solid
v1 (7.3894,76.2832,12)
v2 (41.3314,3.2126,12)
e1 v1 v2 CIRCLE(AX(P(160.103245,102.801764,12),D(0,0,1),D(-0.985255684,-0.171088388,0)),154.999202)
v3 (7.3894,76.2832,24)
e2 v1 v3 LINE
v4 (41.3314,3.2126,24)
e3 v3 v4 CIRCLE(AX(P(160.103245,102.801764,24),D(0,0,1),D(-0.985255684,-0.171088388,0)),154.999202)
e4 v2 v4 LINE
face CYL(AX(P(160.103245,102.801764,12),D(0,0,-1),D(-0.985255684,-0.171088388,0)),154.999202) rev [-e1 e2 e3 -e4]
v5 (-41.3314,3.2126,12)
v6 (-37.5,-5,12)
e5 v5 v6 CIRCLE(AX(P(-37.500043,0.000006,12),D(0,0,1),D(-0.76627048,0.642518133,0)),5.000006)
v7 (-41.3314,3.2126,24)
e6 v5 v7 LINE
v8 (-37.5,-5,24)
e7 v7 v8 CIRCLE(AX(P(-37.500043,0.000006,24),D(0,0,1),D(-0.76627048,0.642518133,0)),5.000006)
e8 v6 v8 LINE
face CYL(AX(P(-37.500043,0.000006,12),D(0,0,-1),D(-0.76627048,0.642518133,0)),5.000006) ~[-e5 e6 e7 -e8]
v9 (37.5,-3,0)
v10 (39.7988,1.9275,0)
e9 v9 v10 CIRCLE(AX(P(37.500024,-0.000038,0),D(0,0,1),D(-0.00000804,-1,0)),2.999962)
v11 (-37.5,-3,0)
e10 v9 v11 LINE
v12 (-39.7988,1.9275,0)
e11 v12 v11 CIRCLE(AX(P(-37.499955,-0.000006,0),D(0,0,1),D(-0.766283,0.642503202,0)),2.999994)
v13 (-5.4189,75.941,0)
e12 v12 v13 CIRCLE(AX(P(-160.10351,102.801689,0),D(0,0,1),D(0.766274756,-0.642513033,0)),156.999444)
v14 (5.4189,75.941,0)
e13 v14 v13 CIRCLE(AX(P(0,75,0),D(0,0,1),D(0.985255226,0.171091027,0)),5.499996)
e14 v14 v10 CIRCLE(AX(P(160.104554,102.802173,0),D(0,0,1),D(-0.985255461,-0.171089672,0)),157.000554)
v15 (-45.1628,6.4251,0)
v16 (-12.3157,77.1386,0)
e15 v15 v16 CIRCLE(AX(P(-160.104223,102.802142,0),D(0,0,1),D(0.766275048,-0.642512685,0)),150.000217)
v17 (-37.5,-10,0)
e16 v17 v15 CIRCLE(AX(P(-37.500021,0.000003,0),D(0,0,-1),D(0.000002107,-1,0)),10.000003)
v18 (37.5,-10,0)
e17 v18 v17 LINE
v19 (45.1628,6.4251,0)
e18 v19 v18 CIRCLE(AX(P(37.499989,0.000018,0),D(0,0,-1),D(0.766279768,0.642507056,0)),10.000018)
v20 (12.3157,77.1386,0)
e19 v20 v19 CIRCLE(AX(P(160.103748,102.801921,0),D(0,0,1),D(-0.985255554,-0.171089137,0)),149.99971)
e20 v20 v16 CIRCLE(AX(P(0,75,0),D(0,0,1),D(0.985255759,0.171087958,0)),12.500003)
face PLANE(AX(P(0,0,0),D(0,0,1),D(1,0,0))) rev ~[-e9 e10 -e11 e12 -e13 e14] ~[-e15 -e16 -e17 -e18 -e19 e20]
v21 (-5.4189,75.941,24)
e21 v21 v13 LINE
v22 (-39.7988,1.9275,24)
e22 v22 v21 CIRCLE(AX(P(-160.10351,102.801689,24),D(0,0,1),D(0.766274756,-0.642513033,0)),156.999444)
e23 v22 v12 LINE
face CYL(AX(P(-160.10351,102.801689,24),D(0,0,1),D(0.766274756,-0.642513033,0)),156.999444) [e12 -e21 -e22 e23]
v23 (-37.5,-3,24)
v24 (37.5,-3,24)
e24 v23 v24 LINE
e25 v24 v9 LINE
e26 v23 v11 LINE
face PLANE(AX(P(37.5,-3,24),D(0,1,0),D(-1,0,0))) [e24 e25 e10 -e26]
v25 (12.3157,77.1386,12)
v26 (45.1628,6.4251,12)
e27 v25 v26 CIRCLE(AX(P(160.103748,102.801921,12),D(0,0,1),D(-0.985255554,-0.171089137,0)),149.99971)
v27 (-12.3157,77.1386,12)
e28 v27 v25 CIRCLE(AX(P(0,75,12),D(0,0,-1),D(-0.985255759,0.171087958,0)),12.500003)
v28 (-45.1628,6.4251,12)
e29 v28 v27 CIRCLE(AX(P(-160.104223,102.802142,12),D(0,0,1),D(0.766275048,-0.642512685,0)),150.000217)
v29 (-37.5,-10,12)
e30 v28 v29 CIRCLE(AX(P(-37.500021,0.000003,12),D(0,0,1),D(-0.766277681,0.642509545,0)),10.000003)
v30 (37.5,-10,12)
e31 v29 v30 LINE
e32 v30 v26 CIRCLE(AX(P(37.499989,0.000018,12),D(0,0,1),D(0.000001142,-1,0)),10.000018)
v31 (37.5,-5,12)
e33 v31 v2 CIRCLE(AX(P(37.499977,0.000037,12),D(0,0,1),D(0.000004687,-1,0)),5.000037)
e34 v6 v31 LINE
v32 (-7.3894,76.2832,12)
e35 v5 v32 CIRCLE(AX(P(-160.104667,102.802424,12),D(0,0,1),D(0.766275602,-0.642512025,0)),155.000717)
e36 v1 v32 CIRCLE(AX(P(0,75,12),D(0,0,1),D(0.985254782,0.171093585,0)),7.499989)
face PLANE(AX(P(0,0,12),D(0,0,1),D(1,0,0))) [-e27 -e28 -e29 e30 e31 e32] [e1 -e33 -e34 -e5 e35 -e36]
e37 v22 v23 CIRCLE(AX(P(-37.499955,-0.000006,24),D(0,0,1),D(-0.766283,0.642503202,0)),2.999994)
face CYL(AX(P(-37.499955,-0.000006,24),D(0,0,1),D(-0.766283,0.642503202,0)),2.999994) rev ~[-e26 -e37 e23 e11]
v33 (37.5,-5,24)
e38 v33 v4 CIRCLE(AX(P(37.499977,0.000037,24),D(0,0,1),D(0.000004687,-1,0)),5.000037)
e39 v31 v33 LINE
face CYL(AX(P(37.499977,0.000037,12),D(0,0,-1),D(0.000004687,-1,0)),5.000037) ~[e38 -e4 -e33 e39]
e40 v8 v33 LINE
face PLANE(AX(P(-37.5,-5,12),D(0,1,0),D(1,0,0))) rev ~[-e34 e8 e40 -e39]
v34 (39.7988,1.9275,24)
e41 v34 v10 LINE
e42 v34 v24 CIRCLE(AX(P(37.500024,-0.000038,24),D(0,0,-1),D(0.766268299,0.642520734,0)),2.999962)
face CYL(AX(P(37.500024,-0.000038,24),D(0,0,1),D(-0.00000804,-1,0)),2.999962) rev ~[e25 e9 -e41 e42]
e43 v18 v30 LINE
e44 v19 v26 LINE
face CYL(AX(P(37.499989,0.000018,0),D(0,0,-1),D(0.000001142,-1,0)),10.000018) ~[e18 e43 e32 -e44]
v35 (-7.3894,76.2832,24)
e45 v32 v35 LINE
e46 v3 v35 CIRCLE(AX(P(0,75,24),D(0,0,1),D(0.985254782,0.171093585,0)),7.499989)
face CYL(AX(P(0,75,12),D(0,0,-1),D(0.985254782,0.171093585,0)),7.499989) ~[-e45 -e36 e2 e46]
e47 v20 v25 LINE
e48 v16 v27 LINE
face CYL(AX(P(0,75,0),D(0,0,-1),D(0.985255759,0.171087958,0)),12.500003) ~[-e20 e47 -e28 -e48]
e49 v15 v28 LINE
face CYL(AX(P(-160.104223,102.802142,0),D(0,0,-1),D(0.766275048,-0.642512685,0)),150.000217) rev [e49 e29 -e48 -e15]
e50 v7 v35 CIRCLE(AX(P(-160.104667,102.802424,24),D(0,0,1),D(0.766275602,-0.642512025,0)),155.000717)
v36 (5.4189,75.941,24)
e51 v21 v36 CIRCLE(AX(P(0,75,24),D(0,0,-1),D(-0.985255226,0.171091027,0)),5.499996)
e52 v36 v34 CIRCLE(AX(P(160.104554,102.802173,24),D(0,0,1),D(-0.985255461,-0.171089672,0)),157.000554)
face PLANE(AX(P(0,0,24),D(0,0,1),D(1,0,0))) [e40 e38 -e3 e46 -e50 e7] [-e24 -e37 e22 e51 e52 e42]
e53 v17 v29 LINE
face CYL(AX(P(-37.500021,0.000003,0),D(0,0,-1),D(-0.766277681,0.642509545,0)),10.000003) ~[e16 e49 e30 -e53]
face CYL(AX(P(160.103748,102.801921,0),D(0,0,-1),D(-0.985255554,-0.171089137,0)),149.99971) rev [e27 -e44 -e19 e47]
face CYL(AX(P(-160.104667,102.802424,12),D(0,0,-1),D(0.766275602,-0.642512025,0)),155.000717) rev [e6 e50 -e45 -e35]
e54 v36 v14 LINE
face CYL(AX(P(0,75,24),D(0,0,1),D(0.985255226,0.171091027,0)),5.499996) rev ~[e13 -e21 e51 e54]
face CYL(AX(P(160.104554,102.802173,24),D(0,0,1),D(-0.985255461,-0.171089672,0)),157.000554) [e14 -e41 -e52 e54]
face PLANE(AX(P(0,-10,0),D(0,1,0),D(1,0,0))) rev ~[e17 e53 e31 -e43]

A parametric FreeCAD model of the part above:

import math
import FreeCAD as App
import Part
import Sketcher

V = App.Vector
Q = App.Units.Quantity

doc = App.newDocument("Part")
params = doc.addObject("Spreadsheet::Sheet", "Params")
for row, (alias, value) in enumerate([
    ("sketch1_radius", "150 mm"),
    ("sketch1_radius2", "10 mm"),
    ("sketch1_radius3", "12.5 mm"),
    ("sketch1_width", "75 mm"),
    ("pad1_length", "12 mm"),
    ("sketch2_radius", "5 mm"),
    ("sketch2_radius2", "155 mm"),
    ("sketch2_radius3", "7.5 mm"),
    ("sketch2_width", "75 mm"),
    ("pad2_length", "12 mm"),
    ("sketch3_radius", "3 mm"),
    ("sketch3_radius2", "157 mm"),
    ("sketch3_radius3", "5.5 mm"),
    ("sketch3_width", "75 mm"),
], start=1):
    params.set(f"A{row}", alias)
    params.set(f"B{row}", "=" + value)
    params.setAlias(f"B{row}", alias)

body = doc.addObject("PartDesign::Body", "Body")

sketch1 = doc.addObject("Sketcher::SketchObject", "Sketch")
body.addObject(sketch1)
sketch1.AttachmentSupport = (doc.XY_Plane, [""])
sketch1.MapMode = "FlatFace"
sketch1.addGeometry([
    Part.ArcOfCircle(Part.Circle(V(0, 75, 0), V(0, 0, 1), 12.500003), math.radians(9.851081), math.radians(170.148919)),
    Part.ArcOfCircle(Part.Circle(V(-160.104, 102.802, 0), V(0, 0, 1), 149.999954), math.radians(-39.979454), math.radians(-9.851163)),
    Part.ArcOfCircle(Part.Circle(V(-37.5, 0, 0), V(0, 0, 1), 10.000021), math.radians(140.02086), math.radians(270)),
    Part.LineSegment(V(-37.5, -10, 0), V(37.5, -10, 0)),
    Part.ArcOfCircle(Part.Circle(V(37.5, 0, 0), V(0, 0, 1), 10), math.radians(-90), math.radians(39.97914)),
    Part.ArcOfCircle(Part.Circle(V(160.104, 102.802, 0), V(0, 0, 1), 149.999972), math.radians(-170.148837), math.radians(-140.020546)),
], False)
sketch1.addConstraint([
    Sketcher.Constraint("Tangent", 0, 2, 1, 2),
    Sketcher.Constraint("Tangent", 1, 1, 2, 1),
    Sketcher.Constraint("Tangent", 2, 2, 3, 1),
    Sketcher.Constraint("Tangent", 3, 2, 4, 1),
    Sketcher.Constraint("Tangent", 4, 2, 5, 2),
    Sketcher.Constraint("Tangent", 5, 1, 0, 1),
    Sketcher.Constraint("Horizontal", 3),
    Sketcher.Constraint("Equal", 2, 4),
    Sketcher.Constraint("Equal", 1, 5),
    Sketcher.Constraint("Symmetric", 2, 3, 4, 3, -1, 1),
    Sketcher.Constraint("PointOnObject", 0, 3, -2),
    Sketcher.Constraint("Radius", 1, Q("150 mm")),
    Sketcher.Constraint("Radius", 2, Q("10 mm")),
    Sketcher.Constraint("Radius", 0, Q("12.5 mm")),
    Sketcher.Constraint("DistanceX", 3, 1, 3, 2, Q("75 mm")),
    Sketcher.Constraint("DistanceY", -1, 1, 0, 3, Q("75 mm")),
])
sketch1.setExpression("Constraints[11]", "Params.sketch1_radius")
sketch1.setExpression("Constraints[12]", "Params.sketch1_radius2")
sketch1.setExpression("Constraints[13]", "Params.sketch1_radius3")
sketch1.setExpression("Constraints[14]", "Params.sketch1_width")
pad1 = doc.addObject("PartDesign::Pad", "Pad")
body.addObject(pad1)
pad1.Profile = sketch1
pad1.setExpression("Length", "Params.pad1_length")

sketch2 = doc.addObject("Sketcher::SketchObject", "Sketch001")
body.addObject(sketch2)
sketch2.AttachmentSupport = (doc.XY_Plane, [""])
sketch2.MapMode = "FlatFace"
sketch2.AttachmentOffset = App.Placement(V(0, 0, 12), App.Rotation())
sketch2.addGeometry([
    Part.ArcOfCircle(Part.Circle(V(-160.104, 102.802, 0), V(0, 0, 1), 154.999933), math.radians(-39.979429), math.radians(-9.851145)),
    Part.ArcOfCircle(Part.Circle(V(-37.5, 0, 0), V(0, 0, 1), 5.000042), math.radians(140.020421), math.radians(270)),
    Part.LineSegment(V(-37.5, -5, 0), V(37.5, -5, 0)),
    Part.ArcOfCircle(Part.Circle(V(37.5, 0, 0), V(0, 0, 1), 5), math.radians(-90), math.radians(39.979579)),
    Part.ArcOfCircle(Part.Circle(V(160.104, 102.802, 0), V(0, 0, 1), 154.999986), math.radians(-170.148855), math.radians(-140.020571)),
    Part.ArcOfCircle(Part.Circle(V(0, 75, 0), V(0, 0, 1), 7.499989), math.radians(9.851408), math.radians(170.148592)),
], False)
sketch2.addConstraint([
    Sketcher.Constraint("Tangent", 0, 1, 1, 1),
    Sketcher.Constraint("Tangent", 1, 2, 2, 1),
    Sketcher.Constraint("Tangent", 2, 2, 3, 1),
    Sketcher.Constraint("Tangent", 3, 2, 4, 2),
    Sketcher.Constraint("Tangent", 4, 1, 5, 1),
    Sketcher.Constraint("Tangent", 5, 2, 0, 2),
    Sketcher.Constraint("Horizontal", 2),
    Sketcher.Constraint("Equal", 1, 3),
    Sketcher.Constraint("Equal", 0, 4),
    Sketcher.Constraint("Symmetric", 1, 3, 3, 3, -1, 1),
    Sketcher.Constraint("PointOnObject", 5, 3, -2),
    Sketcher.Constraint("Radius", 1, Q("5 mm")),
    Sketcher.Constraint("Radius", 0, Q("155 mm")),
    Sketcher.Constraint("Radius", 5, Q("7.5 mm")),
    Sketcher.Constraint("DistanceX", 2, 1, 2, 2, Q("75 mm")),
    Sketcher.Constraint("DistanceY", -1, 1, 5, 3, Q("75 mm")),
])
sketch2.setExpression("Constraints[11]", "Params.sketch2_radius")
sketch2.setExpression("Constraints[12]", "Params.sketch2_radius2")
sketch2.setExpression("Constraints[13]", "Params.sketch2_radius3")
sketch2.setExpression("Constraints[14]", "Params.sketch2_width")
pad2 = doc.addObject("PartDesign::Pad", "Pad001")
body.addObject(pad2)
pad2.Profile = sketch2
pad2.setExpression("Length", "Params.pad2_length")

sketch3 = doc.addObject("Sketcher::SketchObject", "Sketch002")
body.addObject(sketch3)
sketch3.AttachmentSupport = (doc.XY_Plane, [""])
sketch3.MapMode = "FlatFace"
sketch3.AttachmentOffset = App.Placement(V(0, 0, 24), App.Rotation())
sketch3.addGeometry([
    Part.ArcOfCircle(Part.Circle(V(160.104, 102.802, 0), V(0, 0, 1), 156.999979), math.radians(-170.148847), math.radians(-140.020561)),
    Part.ArcOfCircle(Part.Circle(V(0, 75, 0), V(0, 0, 1), 5.499996), math.radians(9.85126), math.radians(170.14874)),
    Part.ArcOfCircle(Part.Circle(V(-160.104, 102.802, 0), V(0, 0, 1), 157.000019), math.radians(-39.979439), math.radians(-9.851153)),
    Part.ArcOfCircle(Part.Circle(V(-37.5, 0, 0), V(0, 0, 1), 2.999956), math.radians(140.020808), math.radians(270)),
    Part.LineSegment(V(-37.5, -3, 0), V(37.5, -3, 0)),
    Part.ArcOfCircle(Part.Circle(V(37.5, 0, 0), V(0, 0, 1), 3), math.radians(-90), math.radians(39.979192)),
], False)
sketch3.addConstraint([
    Sketcher.Constraint("Tangent", 0, 1, 1, 1),
    Sketcher.Constraint("Tangent", 1, 2, 2, 2),
    Sketcher.Constraint("Tangent", 2, 1, 3, 1),
    Sketcher.Constraint("Tangent", 3, 2, 4, 1),
    Sketcher.Constraint("Tangent", 4, 2, 5, 1),
    Sketcher.Constraint("Tangent", 5, 2, 0, 2),
    Sketcher.Constraint("Horizontal", 4),
    Sketcher.Constraint("Equal", 0, 2),
    Sketcher.Constraint("Equal", 3, 5),
    Sketcher.Constraint("Symmetric", 3, 3, 5, 3, -1, 1),
    Sketcher.Constraint("PointOnObject", 1, 3, -2),
    Sketcher.Constraint("Radius", 3, Q("3 mm")),
    Sketcher.Constraint("Radius", 0, Q("157 mm")),
    Sketcher.Constraint("Radius", 1, Q("5.5 mm")),
    Sketcher.Constraint("DistanceX", 4, 1, 4, 2, Q("75 mm")),
    Sketcher.Constraint("DistanceY", -1, 1, 1, 3, Q("75 mm")),
])
sketch3.setExpression("Constraints[11]", "Params.sketch3_radius")
sketch3.setExpression("Constraints[12]", "Params.sketch3_radius2")
sketch3.setExpression("Constraints[13]", "Params.sketch3_radius3")
sketch3.setExpression("Constraints[14]", "Params.sketch3_width")
pocket1 = doc.addObject("PartDesign::Pocket", "Pocket")
body.addObject(pocket1)
pocket1.Profile = sketch3
pocket1.Type = "ThroughAll"

doc.recompute()
